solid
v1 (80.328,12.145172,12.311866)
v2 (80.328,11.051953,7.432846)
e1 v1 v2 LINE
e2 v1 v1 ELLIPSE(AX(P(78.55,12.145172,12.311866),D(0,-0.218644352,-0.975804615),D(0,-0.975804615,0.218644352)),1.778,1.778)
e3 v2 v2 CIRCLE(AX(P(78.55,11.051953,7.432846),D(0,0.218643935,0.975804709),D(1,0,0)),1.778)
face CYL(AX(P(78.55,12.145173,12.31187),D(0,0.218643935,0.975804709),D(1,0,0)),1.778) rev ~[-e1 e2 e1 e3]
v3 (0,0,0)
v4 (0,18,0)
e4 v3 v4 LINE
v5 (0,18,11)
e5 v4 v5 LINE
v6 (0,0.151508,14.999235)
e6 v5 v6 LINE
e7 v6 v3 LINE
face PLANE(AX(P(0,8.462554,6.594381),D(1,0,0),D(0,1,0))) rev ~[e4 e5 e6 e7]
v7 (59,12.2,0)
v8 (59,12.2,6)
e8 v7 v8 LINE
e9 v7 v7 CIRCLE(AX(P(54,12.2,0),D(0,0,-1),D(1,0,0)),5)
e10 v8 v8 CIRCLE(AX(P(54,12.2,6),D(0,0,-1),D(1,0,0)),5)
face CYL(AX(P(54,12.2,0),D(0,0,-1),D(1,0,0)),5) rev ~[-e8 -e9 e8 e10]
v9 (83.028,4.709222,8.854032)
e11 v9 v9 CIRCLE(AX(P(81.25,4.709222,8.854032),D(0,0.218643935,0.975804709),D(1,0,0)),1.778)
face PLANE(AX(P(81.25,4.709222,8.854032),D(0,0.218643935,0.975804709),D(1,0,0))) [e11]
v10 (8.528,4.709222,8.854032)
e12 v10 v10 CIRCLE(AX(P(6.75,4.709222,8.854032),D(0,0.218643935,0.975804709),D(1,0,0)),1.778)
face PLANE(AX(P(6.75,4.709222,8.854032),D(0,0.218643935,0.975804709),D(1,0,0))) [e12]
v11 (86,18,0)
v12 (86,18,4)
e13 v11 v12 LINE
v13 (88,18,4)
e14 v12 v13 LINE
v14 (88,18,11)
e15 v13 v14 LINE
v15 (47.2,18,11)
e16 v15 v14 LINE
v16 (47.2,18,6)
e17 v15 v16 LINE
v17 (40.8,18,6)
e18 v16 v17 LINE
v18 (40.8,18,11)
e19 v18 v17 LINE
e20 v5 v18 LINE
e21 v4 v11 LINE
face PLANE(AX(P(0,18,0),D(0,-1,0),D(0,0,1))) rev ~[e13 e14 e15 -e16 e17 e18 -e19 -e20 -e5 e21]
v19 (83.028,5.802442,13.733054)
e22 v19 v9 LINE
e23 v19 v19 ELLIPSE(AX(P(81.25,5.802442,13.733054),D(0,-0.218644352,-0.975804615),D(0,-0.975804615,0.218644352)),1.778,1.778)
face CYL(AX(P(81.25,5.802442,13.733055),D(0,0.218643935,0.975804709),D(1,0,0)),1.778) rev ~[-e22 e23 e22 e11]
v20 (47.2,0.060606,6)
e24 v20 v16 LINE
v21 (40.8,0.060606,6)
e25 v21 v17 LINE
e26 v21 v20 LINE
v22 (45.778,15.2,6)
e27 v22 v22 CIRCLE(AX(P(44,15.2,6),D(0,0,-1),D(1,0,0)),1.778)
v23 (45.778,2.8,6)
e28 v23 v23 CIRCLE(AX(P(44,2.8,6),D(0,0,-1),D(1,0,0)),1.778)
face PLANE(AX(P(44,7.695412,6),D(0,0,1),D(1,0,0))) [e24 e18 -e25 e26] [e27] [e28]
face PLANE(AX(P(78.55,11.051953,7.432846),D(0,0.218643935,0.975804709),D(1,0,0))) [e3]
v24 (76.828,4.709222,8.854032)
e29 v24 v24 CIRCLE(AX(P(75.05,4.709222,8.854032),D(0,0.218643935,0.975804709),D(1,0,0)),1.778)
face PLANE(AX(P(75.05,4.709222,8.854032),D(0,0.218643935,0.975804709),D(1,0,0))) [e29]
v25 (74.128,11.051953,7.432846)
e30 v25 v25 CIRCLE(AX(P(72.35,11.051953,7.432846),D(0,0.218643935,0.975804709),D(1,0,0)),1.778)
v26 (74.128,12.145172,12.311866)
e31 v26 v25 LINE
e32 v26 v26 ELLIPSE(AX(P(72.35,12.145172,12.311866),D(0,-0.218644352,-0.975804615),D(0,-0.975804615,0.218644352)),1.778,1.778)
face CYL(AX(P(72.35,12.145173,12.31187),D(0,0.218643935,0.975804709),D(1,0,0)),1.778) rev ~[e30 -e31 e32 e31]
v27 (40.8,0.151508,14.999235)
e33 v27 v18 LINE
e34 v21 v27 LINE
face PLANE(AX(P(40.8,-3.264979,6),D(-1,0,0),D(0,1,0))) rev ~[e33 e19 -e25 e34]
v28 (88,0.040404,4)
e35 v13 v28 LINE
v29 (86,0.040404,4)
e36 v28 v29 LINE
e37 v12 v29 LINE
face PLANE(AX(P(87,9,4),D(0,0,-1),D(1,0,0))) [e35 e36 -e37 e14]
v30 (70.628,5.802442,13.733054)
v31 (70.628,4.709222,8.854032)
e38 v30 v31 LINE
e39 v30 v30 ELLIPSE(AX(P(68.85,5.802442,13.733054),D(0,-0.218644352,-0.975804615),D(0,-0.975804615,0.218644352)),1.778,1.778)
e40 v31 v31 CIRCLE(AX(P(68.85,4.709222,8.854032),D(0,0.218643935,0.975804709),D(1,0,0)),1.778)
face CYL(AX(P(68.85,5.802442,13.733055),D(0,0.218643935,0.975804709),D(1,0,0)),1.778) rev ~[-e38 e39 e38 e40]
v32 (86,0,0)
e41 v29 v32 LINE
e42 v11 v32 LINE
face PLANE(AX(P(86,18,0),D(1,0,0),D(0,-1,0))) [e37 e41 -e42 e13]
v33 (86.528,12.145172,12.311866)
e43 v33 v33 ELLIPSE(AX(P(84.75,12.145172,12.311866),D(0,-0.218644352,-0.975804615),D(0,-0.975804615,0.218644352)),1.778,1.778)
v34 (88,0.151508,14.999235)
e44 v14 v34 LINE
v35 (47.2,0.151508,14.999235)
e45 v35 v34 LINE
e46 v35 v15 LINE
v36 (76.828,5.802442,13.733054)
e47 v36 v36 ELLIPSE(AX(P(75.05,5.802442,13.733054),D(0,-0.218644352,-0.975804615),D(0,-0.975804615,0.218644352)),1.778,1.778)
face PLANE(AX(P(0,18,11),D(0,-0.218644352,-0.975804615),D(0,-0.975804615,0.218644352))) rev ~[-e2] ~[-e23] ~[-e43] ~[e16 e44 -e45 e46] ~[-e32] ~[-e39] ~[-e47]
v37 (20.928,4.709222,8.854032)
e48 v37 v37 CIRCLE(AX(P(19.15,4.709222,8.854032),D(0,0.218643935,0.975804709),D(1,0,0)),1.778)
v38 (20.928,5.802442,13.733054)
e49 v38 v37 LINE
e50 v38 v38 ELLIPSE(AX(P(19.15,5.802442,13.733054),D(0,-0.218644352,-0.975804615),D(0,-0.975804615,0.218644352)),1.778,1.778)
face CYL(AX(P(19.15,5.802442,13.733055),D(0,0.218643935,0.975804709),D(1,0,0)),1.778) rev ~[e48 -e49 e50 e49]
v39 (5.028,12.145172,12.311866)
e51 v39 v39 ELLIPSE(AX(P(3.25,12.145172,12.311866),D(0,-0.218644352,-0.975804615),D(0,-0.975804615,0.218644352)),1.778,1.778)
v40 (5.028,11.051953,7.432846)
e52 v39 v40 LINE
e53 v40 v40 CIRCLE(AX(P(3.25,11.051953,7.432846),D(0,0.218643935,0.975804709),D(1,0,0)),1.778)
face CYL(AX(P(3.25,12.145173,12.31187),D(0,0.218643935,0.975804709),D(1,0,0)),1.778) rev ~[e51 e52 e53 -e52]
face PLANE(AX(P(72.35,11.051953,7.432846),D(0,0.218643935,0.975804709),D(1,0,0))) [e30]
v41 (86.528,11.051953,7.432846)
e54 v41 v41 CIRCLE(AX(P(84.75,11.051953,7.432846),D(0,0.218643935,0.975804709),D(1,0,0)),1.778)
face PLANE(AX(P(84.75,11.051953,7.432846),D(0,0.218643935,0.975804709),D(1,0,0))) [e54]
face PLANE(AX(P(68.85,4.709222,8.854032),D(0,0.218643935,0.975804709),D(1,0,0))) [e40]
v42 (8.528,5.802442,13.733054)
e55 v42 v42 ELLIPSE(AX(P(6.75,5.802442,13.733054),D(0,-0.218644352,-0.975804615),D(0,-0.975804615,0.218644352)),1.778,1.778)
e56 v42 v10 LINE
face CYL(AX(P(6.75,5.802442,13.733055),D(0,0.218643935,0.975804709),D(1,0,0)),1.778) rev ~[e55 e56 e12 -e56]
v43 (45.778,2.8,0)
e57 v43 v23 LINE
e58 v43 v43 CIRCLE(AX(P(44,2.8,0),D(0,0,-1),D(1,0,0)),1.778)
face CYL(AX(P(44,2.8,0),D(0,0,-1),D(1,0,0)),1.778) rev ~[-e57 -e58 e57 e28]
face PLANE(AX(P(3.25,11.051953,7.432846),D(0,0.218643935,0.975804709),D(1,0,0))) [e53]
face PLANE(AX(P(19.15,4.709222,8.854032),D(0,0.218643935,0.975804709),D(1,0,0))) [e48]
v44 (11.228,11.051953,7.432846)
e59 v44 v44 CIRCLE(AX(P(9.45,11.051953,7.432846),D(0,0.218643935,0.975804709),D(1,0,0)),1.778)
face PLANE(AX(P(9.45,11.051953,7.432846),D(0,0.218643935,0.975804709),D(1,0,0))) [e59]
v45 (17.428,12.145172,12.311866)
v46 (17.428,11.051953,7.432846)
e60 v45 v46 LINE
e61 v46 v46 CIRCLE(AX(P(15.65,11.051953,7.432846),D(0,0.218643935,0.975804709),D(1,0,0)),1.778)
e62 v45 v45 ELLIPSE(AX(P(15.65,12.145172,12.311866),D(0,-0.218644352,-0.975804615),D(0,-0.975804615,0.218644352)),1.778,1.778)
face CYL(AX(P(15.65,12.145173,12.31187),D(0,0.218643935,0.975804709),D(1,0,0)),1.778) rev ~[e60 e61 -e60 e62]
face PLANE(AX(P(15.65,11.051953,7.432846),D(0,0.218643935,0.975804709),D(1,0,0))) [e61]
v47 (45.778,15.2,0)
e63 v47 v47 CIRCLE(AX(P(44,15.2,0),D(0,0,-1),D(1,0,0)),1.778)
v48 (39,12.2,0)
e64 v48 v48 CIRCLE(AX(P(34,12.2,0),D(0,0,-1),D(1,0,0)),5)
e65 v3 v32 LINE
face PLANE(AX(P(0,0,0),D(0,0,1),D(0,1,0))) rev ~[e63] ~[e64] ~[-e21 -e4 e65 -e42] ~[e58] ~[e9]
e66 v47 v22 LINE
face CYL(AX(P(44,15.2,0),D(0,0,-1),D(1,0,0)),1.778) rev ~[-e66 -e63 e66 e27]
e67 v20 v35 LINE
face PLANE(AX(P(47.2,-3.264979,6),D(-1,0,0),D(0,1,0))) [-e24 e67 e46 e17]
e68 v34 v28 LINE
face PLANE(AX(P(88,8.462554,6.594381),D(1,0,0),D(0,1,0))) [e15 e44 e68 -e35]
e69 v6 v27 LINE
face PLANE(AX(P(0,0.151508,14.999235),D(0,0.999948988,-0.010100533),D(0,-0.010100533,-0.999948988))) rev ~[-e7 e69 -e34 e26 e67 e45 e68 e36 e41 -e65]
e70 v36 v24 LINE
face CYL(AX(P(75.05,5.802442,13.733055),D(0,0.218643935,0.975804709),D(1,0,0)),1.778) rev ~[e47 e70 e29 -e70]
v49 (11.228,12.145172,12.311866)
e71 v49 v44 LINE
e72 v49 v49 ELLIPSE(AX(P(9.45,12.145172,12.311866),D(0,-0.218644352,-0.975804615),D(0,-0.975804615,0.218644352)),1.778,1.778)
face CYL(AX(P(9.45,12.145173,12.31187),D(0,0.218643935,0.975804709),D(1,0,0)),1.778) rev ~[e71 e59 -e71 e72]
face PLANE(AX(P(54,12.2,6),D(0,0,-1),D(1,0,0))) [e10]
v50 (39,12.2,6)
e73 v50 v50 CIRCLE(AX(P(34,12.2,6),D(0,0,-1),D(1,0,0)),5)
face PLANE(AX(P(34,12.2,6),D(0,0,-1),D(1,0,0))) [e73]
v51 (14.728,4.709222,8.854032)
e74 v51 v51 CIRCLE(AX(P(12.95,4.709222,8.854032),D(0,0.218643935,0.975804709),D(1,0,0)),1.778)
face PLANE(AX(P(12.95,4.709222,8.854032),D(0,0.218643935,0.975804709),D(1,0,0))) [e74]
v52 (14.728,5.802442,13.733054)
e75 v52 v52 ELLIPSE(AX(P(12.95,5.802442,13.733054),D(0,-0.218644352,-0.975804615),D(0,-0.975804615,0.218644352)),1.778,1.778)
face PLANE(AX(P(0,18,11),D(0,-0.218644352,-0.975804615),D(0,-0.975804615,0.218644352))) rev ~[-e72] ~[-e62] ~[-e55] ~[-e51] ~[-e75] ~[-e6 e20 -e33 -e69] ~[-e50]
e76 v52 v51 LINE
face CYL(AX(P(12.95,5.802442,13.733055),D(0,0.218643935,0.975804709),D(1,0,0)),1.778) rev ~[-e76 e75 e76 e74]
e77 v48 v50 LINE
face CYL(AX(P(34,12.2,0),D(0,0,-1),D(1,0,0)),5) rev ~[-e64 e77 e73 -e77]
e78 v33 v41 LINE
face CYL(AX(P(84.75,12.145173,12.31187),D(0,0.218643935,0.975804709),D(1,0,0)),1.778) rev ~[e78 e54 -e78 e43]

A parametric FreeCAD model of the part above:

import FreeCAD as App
import Part
import Sketcher

V = App.Vector


def add_polygon(sketch, points):
    """Adds a closed chain of lines whose ends are joined by coincident constraints."""
    first, n = sketch.GeometryCount, len(points)
    for a, b in zip(points, points[1:] + points[:1]):
        sketch.addGeometry(Part.LineSegment(App.Vector(*a, 0), App.Vector(*b, 0)), False)
    for i in range(n):
        sketch.addConstraint(Sketcher.Constraint("Coincident", first + i, 2, first + (i + 1) % n, 1))

doc = App.newDocument("Part")
params = doc.addObject("Spreadsheet::Sheet", "Params")
for row, (alias, value) in enumerate([
    ("sketch1_width", "18 mm"),
    ("sketch1_height", "11 mm"),
    ("sketch1_length", "15 mm"),
    ("pad1_length", "88 mm"),
    ("pocket1_length", "5 mm"),
    ("pocket2_length", "11.627384 mm"),
    ("sketch4_width", "6.4 mm"),
    ("pocket3_length", "25 mm"),
    ("sketch5_diameter", "10 mm"),
    ("pocket4_length", "6 mm"),
    ("sketch6_width", "2 mm"),
    ("sketch6_height", "18 mm"),
    ("pocket5_length", "4 mm"),
], start=1):
    params.set(f"A{row}", alias)
    params.set(f"B{row}", "=" + value)
    params.setAlias(f"B{row}", alias)

body = doc.addObject("PartDesign::Body", "Body")

# Sketch on YZ plane
sketch1 = doc.addObject("Sketcher::SketchObject", "Sketch")
body.addObject(sketch1)
sketch1.AttachmentSupport = (doc.YZ_Plane, [""])
sketch1.MapMode = "FlatFace"
add_polygon(sketch1, [(0.151508, 14.999235), (0, 0), (18, 0), (18, 11)])  # lines 0-3
sketch1.addConstraint(Sketcher.Constraint("Horizontal", 1))
sketch1.addConstraint(Sketcher.Constraint("Vertical", 2))
sketch1.addConstraint(Sketcher.Constraint("Coincident", 0, 2, -1, 1))
sketch1.addConstraint(Sketcher.Constraint("DistanceX", 1, 1, 1, 2, 18.0))
sketch1.addConstraint(Sketcher.Constraint("DistanceY", 2, 1, 2, 2, 11.0))
sketch1.addConstraint(Sketcher.Constraint("Distance", 0, 15.0))
sketch1.addConstraint(Sketcher.Constraint("Distance", 3, 18.291051))
sketch1.setExpression("Constraints[7]", "Params.sketch1_width")
sketch1.setExpression("Constraints[8]", "Params.sketch1_height")
sketch1.setExpression("Constraints[9]", "Params.sketch1_length")
pad1 = doc.addObject("PartDesign::Pad", "Pad")
body.addObject(pad1)
pad1.Profile = sketch1
pad1.setExpression("Length", "Params.pad1_length")

# Sketch on an angled plane
sketch2 = doc.addObject("Sketcher::SketchObject", "Sketch001")
body.addObject(sketch2)
sketch2.Placement = App.Placement(V(0, 3.207392, 14.314516), App.Rotation(V(1, 0, 0), V(0, 0.975804709, -0.218643935), V(0, 0.218643935, 0.975804709), "ZXY"))
sketch2.addGeometry(Part.Circle(V(19.15, 2.659395, 0), V(0, 0, 1), 1.778), False)
sketch2.addGeometry(Part.Circle(V(12.95, 2.659395, 0), V(0, 0, 1), 1.778), False)
sketch2.addGeometry(Part.Circle(V(6.75, 2.659395, 0), V(0, 0, 1), 1.778), False)
sketch2.addGeometry(Part.Circle(V(15.65, 9.159395, 0), V(0, 0, 1), 1.778), False)
sketch2.addGeometry(Part.Circle(V(3.25, 9.159395, 0), V(0, 0, 1), 1.778), False)
sketch2.addGeometry(Part.Circle(V(75.05, 2.659395, 0), V(0, 0, 1), 1.778), False)
sketch2.addGeometry(Part.Circle(V(68.85, 2.659395, 0), V(0, 0, 1), 1.778), False)
sketch2.addGeometry(Part.Circle(V(81.25, 2.659395, 0), V(0, 0, 1), 1.778), False)
sketch2.addGeometry(Part.Circle(V(72.35, 9.159395, 0), V(0, 0, 1), 1.778), False)
sketch2.addGeometry(Part.Circle(V(78.55, 9.159395, 0), V(0, 0, 1), 1.778), False)
sketch2.addGeometry(Part.Circle(V(84.75, 9.159395, 0), V(0, 0, 1), 1.778), False)
sketch2.addGeometry(Part.Circle(V(9.45, 9.159395, 0), V(0, 0, 1), 1.778), False)
sketch2.addConstraint(Sketcher.Constraint("Equal", 0, 1))
sketch2.addConstraint(Sketcher.Constraint("Equal", 1, 2))
sketch2.addConstraint(Sketcher.Constraint("Equal", 2, 3))
sketch2.addConstraint(Sketcher.Constraint("Equal", 3, 4))
sketch2.addConstraint(Sketcher.Constraint("Equal", 4, 5))
sketch2.addConstraint(Sketcher.Constraint("Equal", 5, 6))
sketch2.addConstraint(Sketcher.Constraint("Equal", 6, 7))
sketch2.addConstraint(Sketcher.Constraint("Equal", 7, 8))
sketch2.addConstraint(Sketcher.Constraint("Equal", 8, 9))
sketch2.addConstraint(Sketcher.Constraint("Equal", 9, 10))
sketch2.addConstraint(Sketcher.Constraint("Equal", 10, 11))
sketch2.addConstraint(Sketcher.Constraint("Horizontal", 0, 3, 1, 3))
sketch2.addConstraint(Sketcher.Constraint("Horizontal", 1, 3, 2, 3))
sketch2.addConstraint(Sketcher.Constraint("Horizontal", 3, 3, 4, 3))
sketch2.addConstraint(Sketcher.Constraint("Horizontal", 2, 3, 5, 3))
sketch2.addConstraint(Sketcher.Constraint("Horizontal", 5, 3, 6, 3))
sketch2.addConstraint(Sketcher.Constraint("Horizontal", 6, 3, 7, 3))
sketch2.addConstraint(Sketcher.Constraint("Horizontal", 4, 3, 8, 3))
sketch2.addConstraint(Sketcher.Constraint("Horizontal", 8, 3, 9, 3))
sketch2.addConstraint(Sketcher.Constraint("Horizontal", 9, 3, 10, 3))
sketch2.addConstraint(Sketcher.Constraint("Horizontal", 10, 3, 11, 3))
sketch2.addConstraint(Sketcher.Constraint("Diameter", 0, 3.556))
sketch2.addConstraint(Sketcher.Constraint("DistanceX", 1, 3, 0, 3, 6.2))
sketch2.addConstraint(Sketcher.Constraint("DistanceX", 2, 3, 1, 3, 6.2))
sketch2.addConstraint(Sketcher.Constraint("DistanceX", 1, 3, 3, 3, 2.7))
sketch2.addConstraint(Sketcher.Constraint("DistanceY", 1, 3, 3, 3, 6.5))
sketch2.addConstraint(Sketcher.Constraint("DistanceX", 4, 3, 2, 3, 3.5))
sketch2.addConstraint(Sketcher.Constraint("DistanceX", 0, 3, 5, 3, 55.9))
sketch2.addConstraint(Sketcher.Constraint("DistanceX", 6, 3, 5, 3, 6.2))
sketch2.addConstraint(Sketcher.Constraint("DistanceX", 5, 3, 7, 3, 6.2))
sketch2.addConstraint(Sketcher.Constraint("DistanceX", 8, 3, 5, 3, 2.7))
sketch2.addConstraint(Sketcher.Constraint("DistanceX", 8, 3, 9, 3, 6.2))
sketch2.addConstraint(Sketcher.Constraint("DistanceX", 9, 3, 10, 3, 6.2))
sketch2.addConstraint(Sketcher.Constraint("DistanceX", 4, 3, 11, 3, 6.2))
sketch2.addConstraint(Sketcher.Constraint("DistanceX", -1, 1, 0, 3, 19.15))
sketch2.addConstraint(Sketcher.Constraint("DistanceY", -1, 1, 0, 3, 2.659395))
pocket1 = doc.addObject("PartDesign::Pocket", "Pocket")
body.addObject(pocket1)
pocket1.Profile = sketch2
pocket1.setExpression("Length", "Params.pocket1_length")

# Sketch on XY plane
sketch3 = doc.addObject("Sketcher::SketchObject", "Sketch002")
body.addObject(sketch3)
sketch3.AttachmentSupport = (doc.XY_Plane, [""])
sketch3.MapMode = "FlatFace"
sketch3.addGeometry(Part.Circle(V(44, 15.2, 0), V(0, 0, 1), 1.778), False)
sketch3.addGeometry(Part.Circle(V(44, 2.8, 0), V(0, 0, 1), 1.778), False)
sketch3.addConstraint(Sketcher.Constraint("Equal", 0, 1))
sketch3.addConstraint(Sketcher.Constraint("Vertical", 0, 3, 1, 3))
sketch3.addConstraint(Sketcher.Constraint("Diameter", 0, 3.556))
sketch3.addConstraint(Sketcher.Constraint("DistanceX", -1, 1, 0, 3, 44.0))
sketch3.addConstraint(Sketcher.Constraint("DistanceY", -1, 1, 0, 3, 15.2))
sketch3.addConstraint(Sketcher.Constraint("DistanceY", -1, 1, 1, 3, 2.8))
pocket2 = doc.addObject("PartDesign::Pocket", "Pocket001")
body.addObject(pocket2)
pocket2.Profile = sketch3
pocket2.setExpression("Length", "Params.pocket2_length")
pocket2.Reversed = True

# Sketch on XY plane
sketch4 = doc.addObject("Sketcher::SketchObject", "Sketch003")
body.addObject(sketch4)
sketch4.AttachmentSupport = (doc.XY_Plane, [""])
sketch4.MapMode = "FlatFace"
sketch4.AttachmentOffset = App.Placement(V(0, 0, 6), App.Rotation())
add_polygon(sketch4, [(40.8, 18.655803), (40.8, -3.264979), (47.2, -3.264979), (47.2, 18.655803)])  # lines 0-3
sketch4.addConstraint(Sketcher.Constraint("Vertical", 0))
sketch4.addConstraint(Sketcher.Constraint("Horizontal", 1))
sketch4.addConstraint(Sketcher.Constraint("Vertical", 2))
sketch4.addConstraint(Sketcher.Constraint("Horizontal", 3))
sketch4.addConstraint(Sketcher.Constraint("DistanceX", 1, 1, 1, 2, 6.4))
sketch4.addConstraint(Sketcher.Constraint("DistanceX", -1, 1, 0, 2, 40.8))
sketch4.addConstraint(Sketcher.Constraint("DistanceY", 0, 2, 0, 1, 21.920782))
sketch4.addConstraint(Sketcher.Constraint("DistanceY", 0, 2, -1, 1, 3.264979))
sketch4.setExpression("Constraints[8]", "Params.sketch4_width")
pocket3 = doc.addObject("PartDesign::Pocket", "Pocket002")
body.addObject(pocket3)
pocket3.Profile = sketch4
pocket3.setExpression("Length", "Params.pocket3_length")
pocket3.Reversed = True

# Sketch on XY plane
sketch5 = doc.addObject("Sketcher::SketchObject", "Sketch004")
body.addObject(sketch5)
sketch5.AttachmentSupport = (doc.XY_Plane, [""])
sketch5.MapMode = "FlatFace"
sketch5.addGeometry(Part.Circle(V(54, 12.2, 0), V(0, 0, 1), 5), False)
sketch5.addGeometry(Part.Circle(V(34, 12.2, 0), V(0, 0, 1), 5), False)
sketch5.addConstraint(Sketcher.Constraint("Equal", 0, 1))
sketch5.addConstraint(Sketcher.Constraint("Horizontal", 0, 3, 1, 3))
sketch5.addConstraint(Sketcher.Constraint("Diameter", 0, 10.0))
sketch5.addConstraint(Sketcher.Constraint("DistanceX", -1, 1, 0, 3, 54.0))
sketch5.addConstraint(Sketcher.Constraint("DistanceX", -1, 1, 1, 3, 34.0))
sketch5.addConstraint(Sketcher.Constraint("DistanceY", -1, 1, 0, 3, 12.2))
sketch5.setExpression("Constraints[2]", "Params.sketch5_diameter")
pocket4 = doc.addObject("PartDesign::Pocket", "Pocket003")
body.addObject(pocket4)
pocket4.Profile = sketch5
pocket4.setExpression("Length", "Params.pocket4_length")
pocket4.Reversed = True

# Sketch on XY plane
sketch6 = doc.addObject("Sketcher::SketchObject", "Sketch005")
body.addObject(sketch6)
sketch6.AttachmentSupport = (doc.XY_Plane, [""])
sketch6.MapMode = "FlatFace"
add_polygon(sketch6, [(86, 0), (86, 18), (88, 18), (88, 0)])  # lines 0-3
sketch6.addConstraint(Sketcher.Constraint("Vertical", 0))
sketch6.addConstraint(Sketcher.Constraint("Horizontal", 1))
sketch6.addConstraint(Sketcher.Constraint("Vertical", 2))
sketch6.addConstraint(Sketcher.Constraint("Horizontal", 3))
sketch6.addConstraint(Sketcher.Constraint("PointOnObject", 2, 2, -1))
sketch6.addConstraint(Sketcher.Constraint("DistanceX", 1, 1, 1, 2, 2.0))
sketch6.addConstraint(Sketcher.Constraint("DistanceY", 0, 1, 0, 2, 18.0))
sketch6.addConstraint(Sketcher.Constraint("DistanceX", -1, 1, 0, 2, 86.0))
sketch6.setExpression("Constraints[9]", "Params.sketch6_width")
sketch6.setExpression("Constraints[10]", "Params.sketch6_height")
pocket5 = doc.addObject("PartDesign::Pocket", "Pocket004")
body.addObject(pocket5)
pocket5.Profile = sketch6
pocket5.setExpression("Length", "Params.pocket5_length")
pocket5.Reversed = True

doc.recompute()
